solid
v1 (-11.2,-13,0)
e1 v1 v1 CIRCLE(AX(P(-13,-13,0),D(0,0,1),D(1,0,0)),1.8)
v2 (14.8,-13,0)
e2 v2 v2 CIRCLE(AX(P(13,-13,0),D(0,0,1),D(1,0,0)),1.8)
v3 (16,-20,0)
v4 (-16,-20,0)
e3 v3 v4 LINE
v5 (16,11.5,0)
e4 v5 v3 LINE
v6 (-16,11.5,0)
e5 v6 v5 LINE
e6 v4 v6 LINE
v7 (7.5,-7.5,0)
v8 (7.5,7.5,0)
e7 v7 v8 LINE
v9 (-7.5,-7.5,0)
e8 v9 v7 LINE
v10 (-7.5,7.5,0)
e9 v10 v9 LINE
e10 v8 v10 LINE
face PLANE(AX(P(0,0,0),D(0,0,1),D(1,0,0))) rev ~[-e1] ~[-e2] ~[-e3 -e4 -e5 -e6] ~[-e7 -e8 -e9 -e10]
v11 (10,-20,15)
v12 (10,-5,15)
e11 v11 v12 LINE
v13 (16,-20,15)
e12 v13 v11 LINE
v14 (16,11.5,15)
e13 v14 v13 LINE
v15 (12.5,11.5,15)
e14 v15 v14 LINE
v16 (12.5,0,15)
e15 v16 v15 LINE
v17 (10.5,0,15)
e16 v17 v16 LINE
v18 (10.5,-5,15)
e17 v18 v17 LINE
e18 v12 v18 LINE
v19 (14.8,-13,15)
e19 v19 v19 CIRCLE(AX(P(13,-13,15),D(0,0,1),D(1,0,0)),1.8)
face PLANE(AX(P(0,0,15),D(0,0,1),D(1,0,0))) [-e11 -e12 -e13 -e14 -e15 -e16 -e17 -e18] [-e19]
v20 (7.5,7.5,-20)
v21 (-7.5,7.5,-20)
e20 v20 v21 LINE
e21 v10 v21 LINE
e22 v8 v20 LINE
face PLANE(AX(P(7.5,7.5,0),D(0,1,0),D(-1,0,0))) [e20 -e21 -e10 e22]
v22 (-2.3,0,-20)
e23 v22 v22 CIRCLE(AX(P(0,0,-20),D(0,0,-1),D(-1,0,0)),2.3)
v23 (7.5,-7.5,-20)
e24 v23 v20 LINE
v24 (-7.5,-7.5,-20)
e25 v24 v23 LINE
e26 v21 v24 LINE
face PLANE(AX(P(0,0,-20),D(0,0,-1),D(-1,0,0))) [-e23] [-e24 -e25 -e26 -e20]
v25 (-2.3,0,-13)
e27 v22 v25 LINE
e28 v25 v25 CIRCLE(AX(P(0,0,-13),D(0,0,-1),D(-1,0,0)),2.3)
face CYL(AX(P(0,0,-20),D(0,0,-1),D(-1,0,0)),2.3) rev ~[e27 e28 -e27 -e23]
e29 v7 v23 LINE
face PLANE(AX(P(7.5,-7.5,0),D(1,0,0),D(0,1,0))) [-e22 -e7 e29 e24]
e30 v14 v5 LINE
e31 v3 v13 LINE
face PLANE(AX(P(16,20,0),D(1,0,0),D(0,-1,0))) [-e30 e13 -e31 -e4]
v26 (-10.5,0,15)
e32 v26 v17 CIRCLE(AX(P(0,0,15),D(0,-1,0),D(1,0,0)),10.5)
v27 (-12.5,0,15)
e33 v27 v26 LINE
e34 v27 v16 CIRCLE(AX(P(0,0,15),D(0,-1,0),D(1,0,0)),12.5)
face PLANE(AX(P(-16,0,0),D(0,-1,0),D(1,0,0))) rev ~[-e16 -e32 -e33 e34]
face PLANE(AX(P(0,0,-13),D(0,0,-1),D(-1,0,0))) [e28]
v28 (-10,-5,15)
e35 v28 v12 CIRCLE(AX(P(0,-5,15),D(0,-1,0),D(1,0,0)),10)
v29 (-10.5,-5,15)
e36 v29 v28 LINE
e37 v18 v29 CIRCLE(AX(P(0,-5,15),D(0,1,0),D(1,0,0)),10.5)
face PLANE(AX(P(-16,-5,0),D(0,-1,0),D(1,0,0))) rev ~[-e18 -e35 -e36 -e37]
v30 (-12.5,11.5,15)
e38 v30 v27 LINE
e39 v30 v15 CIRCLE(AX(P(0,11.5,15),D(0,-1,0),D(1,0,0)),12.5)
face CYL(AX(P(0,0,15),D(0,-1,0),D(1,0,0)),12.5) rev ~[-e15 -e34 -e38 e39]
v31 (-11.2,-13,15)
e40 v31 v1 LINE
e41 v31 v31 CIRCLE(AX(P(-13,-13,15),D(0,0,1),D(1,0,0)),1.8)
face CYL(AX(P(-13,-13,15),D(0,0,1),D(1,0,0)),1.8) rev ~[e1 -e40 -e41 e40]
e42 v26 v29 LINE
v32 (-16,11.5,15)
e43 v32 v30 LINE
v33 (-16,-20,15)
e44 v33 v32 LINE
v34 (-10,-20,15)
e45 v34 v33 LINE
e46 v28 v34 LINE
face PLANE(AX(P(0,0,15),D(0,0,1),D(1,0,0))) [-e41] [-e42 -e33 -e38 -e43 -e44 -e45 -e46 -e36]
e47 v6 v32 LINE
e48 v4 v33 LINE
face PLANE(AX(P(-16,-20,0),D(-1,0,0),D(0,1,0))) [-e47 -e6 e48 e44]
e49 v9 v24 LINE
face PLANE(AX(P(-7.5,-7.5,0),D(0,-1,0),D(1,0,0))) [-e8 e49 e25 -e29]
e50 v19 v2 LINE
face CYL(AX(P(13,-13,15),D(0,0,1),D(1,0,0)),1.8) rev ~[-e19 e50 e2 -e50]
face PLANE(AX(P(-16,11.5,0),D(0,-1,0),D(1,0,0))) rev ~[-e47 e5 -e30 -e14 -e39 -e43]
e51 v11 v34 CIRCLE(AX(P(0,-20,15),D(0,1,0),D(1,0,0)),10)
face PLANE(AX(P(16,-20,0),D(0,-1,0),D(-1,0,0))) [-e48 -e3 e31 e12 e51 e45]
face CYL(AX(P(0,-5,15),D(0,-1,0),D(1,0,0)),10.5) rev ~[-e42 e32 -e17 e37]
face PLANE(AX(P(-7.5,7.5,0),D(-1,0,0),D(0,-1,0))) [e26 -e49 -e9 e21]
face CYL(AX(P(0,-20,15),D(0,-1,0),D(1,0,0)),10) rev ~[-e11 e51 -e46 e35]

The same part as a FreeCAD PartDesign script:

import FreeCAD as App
import Part
import Sketcher

V = App.Vector
Q = App.Units.Quantity

doc = App.newDocument("Part")
params = doc.addObject("Spreadsheet::Sheet", "Params")
for row, (alias, value) in enumerate([
    ("sketch1_width", "32 mm"),
    ("sketch1_height", "40 mm"),
    ("pad1_length", "15 mm"),
    ("sketch2_diameter", "20 mm"),
    ("pocket1_length", "15 mm"),
    ("sketch3_diameter", "21 mm"),
    ("pocket2_length", "5 mm"),
    ("sketch4_diameter", "25 mm"),
    ("sketch5_diameter", "3.6 mm"),
    ("sketch6_width", "15 mm"),
    ("pad2_length", "20 mm"),
    ("sketch7_diameter", "4.6 mm"),
    ("pocket5_length", "7 mm"),
    ("sketch8_height", "8.5 mm"),
    ("sketch8_width", "32 mm"),
    ("pocket6_length", "58.75 mm"),
], start=1):
    params.set(f"A{row}", alias)
    params.set(f"B{row}", "=" + value)
    params.setAlias(f"B{row}", alias)

body = doc.addObject("PartDesign::Body", "Body")

sketch1 = doc.addObject("Sketcher::SketchObject", "Sketch")
body.addObject(sketch1)
sketch1.AttachmentSupport = (doc.XY_Plane, [""])
sketch1.MapMode = "FlatFace"
sketch1.addGeometry([
    Part.LineSegment(V(16, 20, 0), V(-16, 20, 0)),
    Part.LineSegment(V(-16, 20, 0), V(-16, -20, 0)),
    Part.LineSegment(V(-16, -20, 0), V(16, -20, 0)),
    Part.LineSegment(V(16, -20, 0), V(16, 20, 0)),
], False)
sketch1.addConstraint([
    Sketcher.Constraint("Coincident", 0, 2, 1, 1),
    Sketcher.Constraint("Coincident", 1, 2, 2, 1),
    Sketcher.Constraint("Coincident", 2, 2, 3, 1),
    Sketcher.Constraint("Coincident", 3, 2, 0, 1),
    Sketcher.Constraint("Horizontal", 0),
    Sketcher.Constraint("Vertical", 1),
    Sketcher.Constraint("Horizontal", 2),
    Sketcher.Constraint("Vertical", 3),
    Sketcher.Constraint("Symmetric", 0, 2, 2, 2, -1, 1),
    Sketcher.Constraint("DistanceX", 0, 2, 0, 1, Q("32 mm")),
    Sketcher.Constraint("DistanceY", 1, 2, 1, 1, Q("40 mm")),
])
sketch1.setExpression("Constraints[9]", "Params.sketch1_width")
sketch1.setExpression("Constraints[10]", "Params.sketch1_height")
pad1 = doc.addObject("PartDesign::Pad", "Pad")
body.addObject(pad1)
pad1.Profile = sketch1
pad1.setExpression("Length", "Params.pad1_length")

sketch2 = doc.addObject("Sketcher::SketchObject", "Sketch001")
body.addObject(sketch2)
sketch2.AttachmentSupport = (doc.XZ_Plane, [""])
sketch2.MapMode = "FlatFace"
sketch2.AttachmentOffset = App.Placement(V(0, 0, 20), App.Rotation())
sketch2.addGeometry(Part.Circle(V(0, 15, 0), V(0, 0, 1), 10), False)
sketch2.addConstraint([
    Sketcher.Constraint("PointOnObject", 0, 3, -2),
    Sketcher.Constraint("Diameter", 0, Q("20 mm")),
    Sketcher.Constraint("DistanceY", -1, 1, 0, 3, Q("15 mm")),
])
sketch2.setExpression("Constraints[1]", "Params.sketch2_diameter")
pocket1 = doc.addObject("PartDesign::Pocket", "Pocket")
body.addObject(pocket1)
pocket1.Profile = sketch2
pocket1.setExpression("Length", "Params.pocket1_length")

sketch3 = doc.addObject("Sketcher::SketchObject", "Sketch002")
body.addObject(sketch3)
sketch3.AttachmentSupport = (doc.XZ_Plane, [""])
sketch3.MapMode = "FlatFace"
sketch3.AttachmentOffset = App.Placement(V(0, 0, 5), App.Rotation())
sketch3.addGeometry(Part.Circle(V(0, 15, 0), V(0, 0, 1), 10.5), False)
sketch3.addConstraint([
    Sketcher.Constraint("PointOnObject", 0, 3, -2),
    Sketcher.Constraint("Diameter", 0, Q("21 mm")),
    Sketcher.Constraint("DistanceY", -1, 1, 0, 3, Q("15 mm")),
])
sketch3.setExpression("Constraints[1]", "Params.sketch3_diameter")
pocket2 = doc.addObject("PartDesign::Pocket", "Pocket001")
body.addObject(pocket2)
pocket2.Profile = sketch3
pocket2.setExpression("Length", "Params.pocket2_length")

sketch4 = doc.addObject("Sketcher::SketchObject", "Sketch003")
body.addObject(sketch4)
sketch4.AttachmentSupport = (doc.XZ_Plane, [""])
sketch4.MapMode = "FlatFace"
sketch4.addGeometry(Part.Circle(V(0, 15, 0), V(0, 0, 1), 12.5), False)
sketch4.addConstraint([
    Sketcher.Constraint("PointOnObject", 0, 3, -2),
    Sketcher.Constraint("Diameter", 0, Q("25 mm")),
    Sketcher.Constraint("DistanceY", -1, 1, 0, 3, Q("15 mm")),
])
sketch4.setExpression("Constraints[1]", "Params.sketch4_diameter")
pocket3 = doc.addObject("PartDesign::Pocket", "Pocket002")
body.addObject(pocket3)
pocket3.Profile = sketch4
pocket3.Type = "ThroughAll"

sketch5 = doc.addObject("Sketcher::SketchObject", "Sketch004")
body.addObject(sketch5)
sketch5.AttachmentSupport = (doc.XY_Plane, [""])
sketch5.MapMode = "FlatFace"
sketch5.AttachmentOffset = App.Placement(V(0, 0, 15), App.Rotation())
sketch5.addGeometry([
    Part.Circle(V(-13, -13, 0), V(0, 0, 1), 1.8),
    Part.Circle(V(13, -13, 0), V(0, 0, 1), 1.8),
], False)
sketch5.addConstraint([
    Sketcher.Constraint("Equal", 0, 1),
    Sketcher.Constraint("Symmetric", 0, 3, 1, 3, -2),
    Sketcher.Constraint("Diameter", 0, Q("3.6 mm")),
    Sketcher.Constraint("DistanceX", 0, 3, -1, 1, Q("13 mm")),
    Sketcher.Constraint("DistanceY", 0, 3, -1, 1, Q("13 mm")),
])
sketch5.setExpression("Constraints[2]", "Params.sketch5_diameter")
pocket4 = doc.addObject("PartDesign::Pocket", "Pocket003")
body.addObject(pocket4)
pocket4.Profile = sketch5
pocket4.Type = "ThroughAll"

sketch6 = doc.addObject("Sketcher::SketchObject", "Sketch005")
body.addObject(sketch6)
sketch6.AttachmentSupport = (doc.XY_Plane, [""])
sketch6.MapMode = "FlatFace"
sketch6.addGeometry([
    Part.LineSegment(V(-7.5, 7.5, 0), V(7.5, 7.5, 0)),
    Part.LineSegment(V(7.5, 7.5, 0), V(7.5, -7.5, 0)),
    Part.LineSegment(V(7.5, -7.5, 0), V(-7.5, -7.5, 0)),
    Part.LineSegment(V(-7.5, -7.5, 0), V(-7.5, 7.5, 0)),
], False)
sketch6.addConstraint([
    Sketcher.Constraint("Coincident", 0, 2, 1, 1),
    Sketcher.Constraint("Coincident", 1, 2, 2, 1),
    Sketcher.Constraint("Coincident", 2, 2, 3, 1),
    Sketcher.Constraint("Coincident", 3, 2, 0, 1),
    Sketcher.Constraint("Horizontal", 0),
    Sketcher.Constraint("Vertical", 1),
    Sketcher.Constraint("Horizontal", 2),
    Sketcher.Constraint("Vertical", 3),
    Sketcher.Constraint("Symmetric", 0, 2, 2, 2, -1, 1),
    Sketcher.Constraint("Equal", 2, 1),
    Sketcher.Constraint("DistanceX", 0, 1, 0, 2, Q("15 mm")),
])
sketch6.setExpression("Constraints[10]", "Params.sketch6_width")
pad2 = doc.addObject("PartDesign::Pad", "Pad001")
body.addObject(pad2)
pad2.Profile = sketch6
pad2.setExpression("Length", "Params.pad2_length")
pad2.Reversed = True

sketch7 = doc.addObject("Sketcher::SketchObject", "Sketch006")
body.addObject(sketch7)
sketch7.AttachmentSupport = (doc.XY_Plane, [""])
sketch7.MapMode = "FlatFace"
sketch7.AttachmentOffset = App.Placement(V(0, 0, -20), App.Rotation())
sketch7.addGeometry(Part.Circle(V(0, 0, 0), V(0, 0, 1), 2.3), False)
sketch7.addConstraint([
    Sketcher.Constraint("Coincident", 0, 3, -1, 1),
    Sketcher.Constraint("Diameter", 0, Q("4.6 mm")),
])
sketch7.setExpression("Constraints[1]", "Params.sketch7_diameter")
pocket5 = doc.addObject("PartDesign::Pocket", "Pocket004")
body.addObject(pocket5)
pocket5.Profile = sketch7
pocket5.setExpression("Length", "Params.pocket5_length")
pocket5.Reversed = True

sketch8 = doc.addObject("Sketcher::SketchObject", "Sketch007")
body.addObject(sketch8)
sketch8.AttachmentSupport = (doc.XY_Plane, [""])
sketch8.MapMode = "FlatFace"
sketch8.addGeometry([
    Part.LineSegment(V(-16, 20, 0), V(16, 20, 0)),
    Part.LineSegment(V(16, 20, 0), V(16, 11.5, 0)),
    Part.LineSegment(V(16, 11.5, 0), V(-16, 11.5, 0)),
    Part.LineSegment(V(-16, 11.5, 0), V(-16, 20, 0)),
], False)
sketch8.addConstraint([
    Sketcher.Constraint("Coincident", 0, 2, 1, 1),
    Sketcher.Constraint("Coincident", 1, 2, 2, 1),
    Sketcher.Constraint("Coincident", 2, 2, 3, 1),
    Sketcher.Constraint("Coincident", 3, 2, 0, 1),
    Sketcher.Constraint("Horizontal", 0),
    Sketcher.Constraint("Vertical", 1),
    Sketcher.Constraint("Horizontal", 2),
    Sketcher.Constraint("Vertical", 3),
    Sketcher.Constraint("DistanceY", 1, 2, 1, 1, Q("8.5 mm")),
    Sketcher.Constraint("DistanceX", 0, 1, 0, 2, Q("32 mm")),
    Sketcher.Constraint("DistanceX", -1, 1, 0, 2, Q("16 mm")),
    Sketcher.Constraint("DistanceY", -1, 1, 0, 2, Q("20 mm")),
])
sketch8.setExpression("Constraints[8]", "Params.sketch8_height")
sketch8.setExpression("Constraints[9]", "Params.sketch8_width")
pocket6 = doc.addObject("PartDesign::Pocket", "Pocket005")
body.addObject(pocket6)
pocket6.Profile = sketch8
pocket6.setExpression("Length", "Params.pocket6_length")
pocket6.Midplane = True

doc.recompute()
